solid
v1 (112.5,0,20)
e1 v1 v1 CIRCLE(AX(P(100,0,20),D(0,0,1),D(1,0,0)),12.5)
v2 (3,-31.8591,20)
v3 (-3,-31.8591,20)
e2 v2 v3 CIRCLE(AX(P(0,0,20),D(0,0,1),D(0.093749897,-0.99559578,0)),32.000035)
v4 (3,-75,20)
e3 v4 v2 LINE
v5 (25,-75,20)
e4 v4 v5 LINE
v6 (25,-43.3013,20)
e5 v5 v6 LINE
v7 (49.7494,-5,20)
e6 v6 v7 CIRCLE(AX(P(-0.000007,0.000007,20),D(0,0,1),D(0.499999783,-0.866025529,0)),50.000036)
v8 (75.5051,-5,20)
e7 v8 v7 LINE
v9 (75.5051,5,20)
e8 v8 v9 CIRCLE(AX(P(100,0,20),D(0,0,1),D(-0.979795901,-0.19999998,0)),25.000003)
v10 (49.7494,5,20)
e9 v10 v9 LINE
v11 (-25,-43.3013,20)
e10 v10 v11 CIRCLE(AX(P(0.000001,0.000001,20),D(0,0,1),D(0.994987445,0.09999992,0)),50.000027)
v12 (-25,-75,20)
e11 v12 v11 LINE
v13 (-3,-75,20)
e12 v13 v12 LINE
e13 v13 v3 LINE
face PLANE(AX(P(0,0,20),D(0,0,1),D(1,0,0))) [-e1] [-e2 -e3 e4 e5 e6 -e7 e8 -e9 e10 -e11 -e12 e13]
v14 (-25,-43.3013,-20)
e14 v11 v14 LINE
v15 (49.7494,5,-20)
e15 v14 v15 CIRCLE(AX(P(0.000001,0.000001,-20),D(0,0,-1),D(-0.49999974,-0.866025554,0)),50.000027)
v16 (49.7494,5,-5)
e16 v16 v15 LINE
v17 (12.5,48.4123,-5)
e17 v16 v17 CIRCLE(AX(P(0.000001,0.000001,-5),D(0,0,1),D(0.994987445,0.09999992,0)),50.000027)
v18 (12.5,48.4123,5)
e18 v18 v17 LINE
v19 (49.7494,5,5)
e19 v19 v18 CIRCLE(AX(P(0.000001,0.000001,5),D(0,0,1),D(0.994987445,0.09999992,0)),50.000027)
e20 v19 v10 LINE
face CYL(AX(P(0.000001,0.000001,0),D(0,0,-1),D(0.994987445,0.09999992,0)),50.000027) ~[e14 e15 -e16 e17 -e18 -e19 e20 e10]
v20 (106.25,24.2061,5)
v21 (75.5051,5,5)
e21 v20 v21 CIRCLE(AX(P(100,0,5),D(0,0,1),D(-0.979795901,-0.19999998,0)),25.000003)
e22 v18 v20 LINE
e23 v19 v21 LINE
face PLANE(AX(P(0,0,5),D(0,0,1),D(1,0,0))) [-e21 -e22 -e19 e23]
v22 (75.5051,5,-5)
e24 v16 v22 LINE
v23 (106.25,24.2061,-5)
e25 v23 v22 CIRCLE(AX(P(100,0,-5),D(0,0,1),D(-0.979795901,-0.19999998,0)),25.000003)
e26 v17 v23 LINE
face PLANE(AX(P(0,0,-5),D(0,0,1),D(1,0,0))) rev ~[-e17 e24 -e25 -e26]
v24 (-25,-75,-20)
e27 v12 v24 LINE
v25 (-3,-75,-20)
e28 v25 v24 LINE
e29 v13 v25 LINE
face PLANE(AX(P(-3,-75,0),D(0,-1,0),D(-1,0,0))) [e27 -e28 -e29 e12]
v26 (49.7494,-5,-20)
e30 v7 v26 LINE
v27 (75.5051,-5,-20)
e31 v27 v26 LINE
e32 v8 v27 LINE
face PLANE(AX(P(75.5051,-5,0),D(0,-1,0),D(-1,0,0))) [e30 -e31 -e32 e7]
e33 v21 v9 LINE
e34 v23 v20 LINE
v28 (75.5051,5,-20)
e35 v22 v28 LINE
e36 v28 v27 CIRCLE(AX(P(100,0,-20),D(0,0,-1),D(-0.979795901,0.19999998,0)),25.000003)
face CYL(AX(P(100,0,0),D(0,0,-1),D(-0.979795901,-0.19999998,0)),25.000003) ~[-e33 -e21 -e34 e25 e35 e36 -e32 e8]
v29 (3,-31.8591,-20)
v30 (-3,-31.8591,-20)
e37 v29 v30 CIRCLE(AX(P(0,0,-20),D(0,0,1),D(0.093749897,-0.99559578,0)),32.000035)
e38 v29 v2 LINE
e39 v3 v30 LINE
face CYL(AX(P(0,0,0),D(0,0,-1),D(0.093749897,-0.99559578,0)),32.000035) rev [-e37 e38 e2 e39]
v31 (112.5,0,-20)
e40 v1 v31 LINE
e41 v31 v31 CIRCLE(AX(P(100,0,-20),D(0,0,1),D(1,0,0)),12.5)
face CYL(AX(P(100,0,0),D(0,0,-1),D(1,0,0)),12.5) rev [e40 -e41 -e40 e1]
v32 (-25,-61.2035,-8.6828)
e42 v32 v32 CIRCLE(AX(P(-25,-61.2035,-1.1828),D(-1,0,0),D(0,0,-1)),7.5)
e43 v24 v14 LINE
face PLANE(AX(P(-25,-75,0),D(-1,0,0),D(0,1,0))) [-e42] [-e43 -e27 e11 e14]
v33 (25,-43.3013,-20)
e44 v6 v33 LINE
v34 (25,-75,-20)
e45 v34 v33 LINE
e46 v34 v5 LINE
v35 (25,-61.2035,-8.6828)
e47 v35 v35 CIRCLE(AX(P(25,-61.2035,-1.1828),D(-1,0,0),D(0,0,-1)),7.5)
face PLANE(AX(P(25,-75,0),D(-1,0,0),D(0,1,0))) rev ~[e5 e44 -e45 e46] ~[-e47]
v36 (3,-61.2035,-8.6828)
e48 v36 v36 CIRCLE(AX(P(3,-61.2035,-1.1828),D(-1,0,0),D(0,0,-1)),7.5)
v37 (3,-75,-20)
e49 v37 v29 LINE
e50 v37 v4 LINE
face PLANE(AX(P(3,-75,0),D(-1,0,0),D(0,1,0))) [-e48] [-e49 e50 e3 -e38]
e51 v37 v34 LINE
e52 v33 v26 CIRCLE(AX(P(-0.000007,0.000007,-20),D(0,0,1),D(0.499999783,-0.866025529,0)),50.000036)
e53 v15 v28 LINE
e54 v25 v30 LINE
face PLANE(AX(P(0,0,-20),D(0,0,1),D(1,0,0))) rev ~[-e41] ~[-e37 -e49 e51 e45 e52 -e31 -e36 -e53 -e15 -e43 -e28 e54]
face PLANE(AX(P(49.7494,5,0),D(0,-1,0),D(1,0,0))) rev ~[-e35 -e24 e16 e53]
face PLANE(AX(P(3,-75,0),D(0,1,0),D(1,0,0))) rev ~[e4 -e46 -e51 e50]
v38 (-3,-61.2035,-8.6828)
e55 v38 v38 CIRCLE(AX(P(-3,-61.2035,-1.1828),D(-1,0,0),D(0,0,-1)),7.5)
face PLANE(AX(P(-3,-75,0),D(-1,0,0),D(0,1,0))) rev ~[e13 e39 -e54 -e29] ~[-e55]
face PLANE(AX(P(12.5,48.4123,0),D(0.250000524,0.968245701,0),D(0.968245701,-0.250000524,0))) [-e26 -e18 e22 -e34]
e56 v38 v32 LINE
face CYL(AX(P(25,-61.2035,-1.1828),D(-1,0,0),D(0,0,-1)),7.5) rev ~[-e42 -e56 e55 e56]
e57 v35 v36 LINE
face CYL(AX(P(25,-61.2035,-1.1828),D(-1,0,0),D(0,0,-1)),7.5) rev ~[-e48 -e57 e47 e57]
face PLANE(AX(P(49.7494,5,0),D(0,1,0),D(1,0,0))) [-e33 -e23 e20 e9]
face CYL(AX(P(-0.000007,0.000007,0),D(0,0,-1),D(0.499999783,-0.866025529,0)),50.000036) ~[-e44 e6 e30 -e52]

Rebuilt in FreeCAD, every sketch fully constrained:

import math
import FreeCAD as App
import Part
import Sketcher

V = App.Vector

doc = App.newDocument("Part")
params = doc.addObject("Spreadsheet::Sheet", "Params")
for row, (alias, value) in enumerate([
    ("sketch1_diameter", "25 mm"),
    ("sketch1_radius", "32 mm"),
    ("sketch1_radius2", "50 mm"),
    ("sketch1_radius3", "25 mm"),
    ("sketch1_width", "22 mm"),
    ("pad1_length", "20 mm"),
    ("sketch2_radius", "50 mm"),
    ("sketch2_radius2", "25 mm"),
    ("pad2_length", "5 mm"),
    ("sketch3_radius", "50 mm"),
    ("sketch3_radius2", "25 mm"),
    ("pad3_length", "5 mm"),
    ("sketch4_diameter", "25 mm"),
    ("sketch4_radius", "32 mm"),
    ("sketch4_radius2", "50 mm"),
    ("sketch4_radius3", "25 mm"),
    ("sketch4_width", "22 mm"),
    ("pad4_length", "20 mm"),
    ("sketch5_diameter", "15 mm"),
    ("hole_diameter", "15 mm"),
], start=1):
    params.set(f"A{row}", alias)
    params.set(f"B{row}", "=" + value)
    params.setAlias(f"B{row}", alias)

body = doc.addObject("PartDesign::Body", "Body")

# Sketch on XY plane
sketch1 = doc.addObject("Sketcher::SketchObject", "Sketch")
body.addObject(sketch1)
sketch1.AttachmentSupport = (doc.XY_Plane, [""])
sketch1.MapMode = "FlatFace"
sketch1.addGeometry([
    Part.ArcOfCircle(Part.Circle(V(0, 0, 0), V(0, 0, 1), 32), math.radians(-85), math.radians(265)),  # 0
    Part.LineSegment(V(3, -32, 0), V(3, -75, 0)),  # 1
    Part.LineSegment(V(3, -75, 0), V(25, -75, 0)),  # 2
    Part.LineSegment(V(25, -75, 0), V(25, -43, 0)),  # 3
    Part.ArcOfCircle(Part.Circle(V(0, 0, 0), V(0, 0, 1), 50), math.radians(-60), math.radians(-6)),  # 4
    Part.LineSegment(V(50, -5, 0), V(76, -5, 0)),  # 5
    Part.ArcOfCircle(Part.Circle(V(100, 0, 0), V(0, 0, 1), 25), math.radians(-168), math.radians(168)),  # 6
    Part.LineSegment(V(76, 5, 0), V(50, 5, 0)),  # 7
    Part.ArcOfCircle(Part.Circle(V(0, 0, 0), V(0, 0, 1), 50), math.radians(6), math.radians(240)),  # 8
    Part.LineSegment(V(-25, -43, 0), V(-25, -75, 0)),  # 9
    Part.LineSegment(V(-25, -75, 0), V(-3, -75, 0)),  # 10
    Part.LineSegment(V(-3, -75, 0), V(-3, -32, 0)),  # 11
    Part.Circle(V(100, 0, 0), V(0, 0, 1), 12),  # 12
], False)
sketch1.addConstraint([
    Sketcher.Constraint("Coincident", 0, 1, 1, 1),
    Sketcher.Constraint("Coincident", 1, 2, 2, 1),
    Sketcher.Constraint("Coincident", 2, 2, 3, 1),
    Sketcher.Constraint("Coincident", 3, 2, 4, 1),
    Sketcher.Constraint("Coincident", 4, 2, 5, 1),
    Sketcher.Constraint("Coincident", 5, 2, 6, 1),
    Sketcher.Constraint("Coincident", 6, 2, 7, 1),
    Sketcher.Constraint("Coincident", 7, 2, 8, 1),
    Sketcher.Constraint("Coincident", 8, 2, 9, 1),
    Sketcher.Constraint("Coincident", 9, 2, 10, 1),
    Sketcher.Constraint("Coincident", 10, 2, 11, 1),
    Sketcher.Constraint("Coincident", 11, 2, 0, 2),
    Sketcher.Constraint("Vertical", 1),
    Sketcher.Constraint("Horizontal", 2),
    Sketcher.Constraint("Vertical", 3),
    Sketcher.Constraint("Horizontal", 5),
    Sketcher.Constraint("Horizontal", 7),
    Sketcher.Constraint("Vertical", 9),
    Sketcher.Constraint("Horizontal", 10),
    Sketcher.Constraint("Vertical", 11),
    Sketcher.Constraint("Coincident", 0, 3, -1, 1),
    Sketcher.Constraint("Coincident", 4, 3, -1, 1),
    Sketcher.Constraint("Coincident", 8, 3, -1, 1),
    Sketcher.Constraint("Coincident", 12, 3, 6, 3),
    Sketcher.Constraint("Equal", 4, 8),
    Sketcher.Constraint("Symmetric", 2, 2, 9, 2, -2),
    Sketcher.Constraint("Symmetric", 5, 2, 6, 2, -1),
    Sketcher.Constraint("Horizontal", 0, 1, 11, 2),
    Sketcher.Constraint("Diameter", 12, 25.0),
    Sketcher.Constraint("Radius", 0, 32.0),
    Sketcher.Constraint("Radius", 4, 50.0),
    Sketcher.Constraint("Radius", 6, 25.0),
    Sketcher.Constraint("DistanceX", 2, 1, 2, 2, 22.0),
    Sketcher.Constraint("DistanceX", -1, 1, 2, 2, 25.0),
    Sketcher.Constraint("DistanceY", 5, 2, 6, 2, 10.0),
    Sketcher.Constraint("DistanceX", -1, 1, 6, 3, 100.0),
    Sketcher.Constraint("DistanceY", 1, 2, -1, 1, 75.0),
])
sketch1.setExpression("Constraints[28]", "Params.sketch1_diameter")
sketch1.setExpression("Constraints[29]", "Params.sketch1_radius")
sketch1.setExpression("Constraints[30]", "Params.sketch1_radius2")
sketch1.setExpression("Constraints[31]", "Params.sketch1_radius3")
sketch1.setExpression("Constraints[32]", "Params.sketch1_width")
pad1 = doc.addObject("PartDesign::Pad", "Pad")
body.addObject(pad1)
pad1.Profile = sketch1
pad1.setExpression("Length", "Params.pad1_length")
pad1.Reversed = True

# Sketch on XY plane
sketch2 = doc.addObject("Sketcher::SketchObject", "Sketch001")
body.addObject(sketch2)
sketch2.AttachmentSupport = (doc.XY_Plane, [""])
sketch2.MapMode = "FlatFace"
sketch2.addGeometry([
    Part.LineSegment(V(106, 24, 0), V(12, 48, 0)),
    Part.ArcOfCircle(Part.Circle(V(0, 0, 0), V(0, 0, 1), 50), math.radians(6), math.radians(76)),
    Part.LineSegment(V(50, 5, 0), V(76, 5, 0)),
    Part.ArcOfCircle(Part.Circle(V(100, 0, 0), V(0, 0, 1), 25), math.radians(76), math.radians(168)),
], False)
sketch2.addConstraint([
    Sketcher.Constraint("Tangent", 0, 2, 1, 2),
    Sketcher.Constraint("Coincident", 1, 1, 2, 1),
    Sketcher.Constraint("Coincident", 2, 2, 3, 2),
    Sketcher.Constraint("Tangent", 3, 1, 0, 1),
    Sketcher.Constraint("Horizontal", 2),
    Sketcher.Constraint("Coincident", 1, 3, -1, 1),
    Sketcher.Constraint("PointOnObject", 3, 3, -1),
    Sketcher.Constraint("Radius", 1, 50.0),
    Sketcher.Constraint("Radius", 3, 25.0),
    Sketcher.Constraint("DistanceX", -1, 1, 3, 3, 100.0),
    Sketcher.Constraint("DistanceY", -1, 1, 1, 1, 5.0),
])
sketch2.setExpression("Constraints[7]", "Params.sketch2_radius")
sketch2.setExpression("Constraints[8]", "Params.sketch2_radius2")
pad2 = doc.addObject("PartDesign::Pad", "Pad001")
body.addObject(pad2)
pad2.Profile = sketch2
pad2.setExpression("Length", "Params.pad2_length")
pad2.Reversed = True

# Sketch on XY plane
sketch3 = doc.addObject("Sketcher::SketchObject", "Sketch002")
body.addObject(sketch3)
sketch3.AttachmentSupport = (doc.XY_Plane, [""])
sketch3.MapMode = "FlatFace"
sketch3.addGeometry([
    Part.LineSegment(V(106, 24, 0), V(12, 48, 0)),
    Part.ArcOfCircle(Part.Circle(V(0, 0, 0), V(0, 0, 1), 50), math.radians(6), math.radians(76)),
    Part.LineSegment(V(50, 5, 0), V(76, 5, 0)),
    Part.ArcOfCircle(Part.Circle(V(100, 0, 0), V(0, 0, 1), 25), math.radians(76), math.radians(168)),
], False)
sketch3.addConstraint([
    Sketcher.Constraint("Tangent", 0, 2, 1, 2),
    Sketcher.Constraint("Coincident", 1, 1, 2, 1),
    Sketcher.Constraint("Coincident", 2, 2, 3, 2),
    Sketcher.Constraint("Tangent", 3, 1, 0, 1),
    Sketcher.Constraint("Horizontal", 2),
    Sketcher.Constraint("Coincident", 1, 3, -1, 1),
    Sketcher.Constraint("PointOnObject", 3, 3, -1),
    Sketcher.Constraint("Radius", 1, 50.0),
    Sketcher.Constraint("Radius", 3, 25.0),
    Sketcher.Constraint("DistanceX", -1, 1, 3, 3, 100.0),
    Sketcher.Constraint("DistanceY", -1, 1, 1, 1, 5.0),
])
sketch3.setExpression("Constraints[7]", "Params.sketch3_radius")
sketch3.setExpression("Constraints[8]", "Params.sketch3_radius2")
pad3 = doc.addObject("PartDesign::Pad", "Pad002")
body.addObject(pad3)
pad3.Profile = sketch3
pad3.setExpression("Length", "Params.pad3_length")

# Sketch on XY plane
sketch4 = doc.addObject("Sketcher::SketchObject", "Sketch003")
body.addObject(sketch4)
sketch4.AttachmentSupport = (doc.XY_Plane, [""])
sketch4.MapMode = "FlatFace"
sketch4.addGeometry([
    Part.ArcOfCircle(Part.Circle(V(0, 0, 0), V(0, 0, 1), 32), math.radians(-85), math.radians(265)),  # 0
    Part.LineSegment(V(3, -32, 0), V(3, -75, 0)),  # 1
    Part.LineSegment(V(3, -75, 0), V(25, -75, 0)),  # 2
    Part.LineSegment(V(25, -75, 0), V(25, -43, 0)),  # 3
    Part.ArcOfCircle(Part.Circle(V(0, 0, 0), V(0, 0, 1), 50), math.radians(-60), math.radians(-6)),  # 4
    Part.LineSegment(V(50, -5, 0), V(76, -5, 0)),  # 5
    Part.ArcOfCircle(Part.Circle(V(100, 0, 0), V(0, 0, 1), 25), math.radians(-168), math.radians(168)),  # 6
    Part.LineSegment(V(76, 5, 0), V(50, 5, 0)),  # 7
    Part.ArcOfCircle(Part.Circle(V(0, 0, 0), V(0, 0, 1), 50), math.radians(6), math.radians(240)),  # 8
    Part.LineSegment(V(-25, -43, 0), V(-25, -75, 0)),  # 9
    Part.LineSegment(V(-25, -75, 0), V(-3, -75, 0)),  # 10
    Part.LineSegment(V(-3, -75, 0), V(-3, -32, 0)),  # 11
    Part.Circle(V(100, 0, 0), V(0, 0, 1), 12),  # 12
], False)
sketch4.addConstraint([
    Sketcher.Constraint("Coincident", 0, 1, 1, 1),
    Sketcher.Constraint("Coincident", 1, 2, 2, 1),
    Sketcher.Constraint("Coincident", 2, 2, 3, 1),
    Sketcher.Constraint("Coincident", 3, 2, 4, 1),
    Sketcher.Constraint("Coincident", 4, 2, 5, 1),
    Sketcher.Constraint("Coincident", 5, 2, 6, 1),
    Sketcher.Constraint("Coincident", 6, 2, 7, 1),
    Sketcher.Constraint("Coincident", 7, 2, 8, 1),
    Sketcher.Constraint("Coincident", 8, 2, 9, 1),
    Sketcher.Constraint("Coincident", 9, 2, 10, 1),
    Sketcher.Constraint("Coincident", 10, 2, 11, 1),
    Sketcher.Constraint("Coincident", 11, 2, 0, 2),
    Sketcher.Constraint("Vertical", 1),
    Sketcher.Constraint("Horizontal", 2),
    Sketcher.Constraint("Vertical", 3),
    Sketcher.Constraint("Horizontal", 5),
    Sketcher.Constraint("Horizontal", 7),
    Sketcher.Constraint("Vertical", 9),
    Sketcher.Constraint("Horizontal", 10),
    Sketcher.Constraint("Vertical", 11),
    Sketcher.Constraint("Coincident", 0, 3, -1, 1),
    Sketcher.Constraint("Coincident", 4, 3, -1, 1),
    Sketcher.Constraint("Coincident", 8, 3, -1, 1),
    Sketcher.Constraint("Coincident", 12, 3, 6, 3),
    Sketcher.Constraint("Equal", 4, 8),
    Sketcher.Constraint("Symmetric", 2, 2, 9, 2, -2),
    Sketcher.Constraint("Symmetric", 5, 2, 6, 2, -1),
    Sketcher.Constraint("Horizontal", 0, 1, 11, 2),
    Sketcher.Constraint("Diameter", 12, 25.0),
    Sketcher.Constraint("Radius", 0, 32.0),
    Sketcher.Constraint("Radius", 4, 50.0),
    Sketcher.Constraint("Radius", 6, 25.0),
    Sketcher.Constraint("DistanceX", 2, 1, 2, 2, 22.0),
    Sketcher.Constraint("DistanceX", -1, 1, 2, 2, 25.0),
    Sketcher.Constraint("DistanceY", 5, 2, 6, 2, 10.0),
    Sketcher.Constraint("DistanceX", -1, 1, 6, 3, 100.0),
    Sketcher.Constraint("DistanceY", 1, 2, -1, 1, 75.0),
])
sketch4.setExpression("Constraints[28]", "Params.sketch4_diameter")
sketch4.setExpression("Constraints[29]", "Params.sketch4_radius")
sketch4.setExpression("Constraints[30]", "Params.sketch4_radius2")
sketch4.setExpression("Constraints[31]", "Params.sketch4_radius3")
sketch4.setExpression("Constraints[32]", "Params.sketch4_width")
pad4 = doc.addObject("PartDesign::Pad", "Pad003")
body.addObject(pad4)
pad4.Profile = sketch4
pad4.setExpression("Length", "Params.pad4_length")

# Sketch on YZ plane
sketch5 = doc.addObject("Sketcher::SketchObject", "Sketch004")
body.addObject(sketch5)
sketch5.AttachmentSupport = (doc.YZ_Plane, [""])
sketch5.MapMode = "FlatFace"
sketch5.AttachmentOffset = App.Placement(V(0, 0, 25), App.Rotation())
sketch5.addGeometry(Part.Circle(V(-61, -1, 0), V(0, 0, 1), 8), False)
sketch5.addConstraint([
    Sketcher.Constraint("Diameter", 0, 15.0),
    Sketcher.Constraint("DistanceX", 0, 3, -1, 1, 61.2035),
    Sketcher.Constraint("DistanceY", 0, 3, -1, 1, 1.1828),
])
sketch5.setExpression("Constraints[0]", "Params.sketch5_diameter")
doc.recompute()
hole = doc.addObject("PartDesign::Hole", "Hole")
body.addObject(hole)
hole.Profile = sketch5
hole.ThreadType = "None"
hole.setExpression("Diameter", "Params.hole_diameter")
hole.DepthType = "ThroughAll"

doc.recompute()
